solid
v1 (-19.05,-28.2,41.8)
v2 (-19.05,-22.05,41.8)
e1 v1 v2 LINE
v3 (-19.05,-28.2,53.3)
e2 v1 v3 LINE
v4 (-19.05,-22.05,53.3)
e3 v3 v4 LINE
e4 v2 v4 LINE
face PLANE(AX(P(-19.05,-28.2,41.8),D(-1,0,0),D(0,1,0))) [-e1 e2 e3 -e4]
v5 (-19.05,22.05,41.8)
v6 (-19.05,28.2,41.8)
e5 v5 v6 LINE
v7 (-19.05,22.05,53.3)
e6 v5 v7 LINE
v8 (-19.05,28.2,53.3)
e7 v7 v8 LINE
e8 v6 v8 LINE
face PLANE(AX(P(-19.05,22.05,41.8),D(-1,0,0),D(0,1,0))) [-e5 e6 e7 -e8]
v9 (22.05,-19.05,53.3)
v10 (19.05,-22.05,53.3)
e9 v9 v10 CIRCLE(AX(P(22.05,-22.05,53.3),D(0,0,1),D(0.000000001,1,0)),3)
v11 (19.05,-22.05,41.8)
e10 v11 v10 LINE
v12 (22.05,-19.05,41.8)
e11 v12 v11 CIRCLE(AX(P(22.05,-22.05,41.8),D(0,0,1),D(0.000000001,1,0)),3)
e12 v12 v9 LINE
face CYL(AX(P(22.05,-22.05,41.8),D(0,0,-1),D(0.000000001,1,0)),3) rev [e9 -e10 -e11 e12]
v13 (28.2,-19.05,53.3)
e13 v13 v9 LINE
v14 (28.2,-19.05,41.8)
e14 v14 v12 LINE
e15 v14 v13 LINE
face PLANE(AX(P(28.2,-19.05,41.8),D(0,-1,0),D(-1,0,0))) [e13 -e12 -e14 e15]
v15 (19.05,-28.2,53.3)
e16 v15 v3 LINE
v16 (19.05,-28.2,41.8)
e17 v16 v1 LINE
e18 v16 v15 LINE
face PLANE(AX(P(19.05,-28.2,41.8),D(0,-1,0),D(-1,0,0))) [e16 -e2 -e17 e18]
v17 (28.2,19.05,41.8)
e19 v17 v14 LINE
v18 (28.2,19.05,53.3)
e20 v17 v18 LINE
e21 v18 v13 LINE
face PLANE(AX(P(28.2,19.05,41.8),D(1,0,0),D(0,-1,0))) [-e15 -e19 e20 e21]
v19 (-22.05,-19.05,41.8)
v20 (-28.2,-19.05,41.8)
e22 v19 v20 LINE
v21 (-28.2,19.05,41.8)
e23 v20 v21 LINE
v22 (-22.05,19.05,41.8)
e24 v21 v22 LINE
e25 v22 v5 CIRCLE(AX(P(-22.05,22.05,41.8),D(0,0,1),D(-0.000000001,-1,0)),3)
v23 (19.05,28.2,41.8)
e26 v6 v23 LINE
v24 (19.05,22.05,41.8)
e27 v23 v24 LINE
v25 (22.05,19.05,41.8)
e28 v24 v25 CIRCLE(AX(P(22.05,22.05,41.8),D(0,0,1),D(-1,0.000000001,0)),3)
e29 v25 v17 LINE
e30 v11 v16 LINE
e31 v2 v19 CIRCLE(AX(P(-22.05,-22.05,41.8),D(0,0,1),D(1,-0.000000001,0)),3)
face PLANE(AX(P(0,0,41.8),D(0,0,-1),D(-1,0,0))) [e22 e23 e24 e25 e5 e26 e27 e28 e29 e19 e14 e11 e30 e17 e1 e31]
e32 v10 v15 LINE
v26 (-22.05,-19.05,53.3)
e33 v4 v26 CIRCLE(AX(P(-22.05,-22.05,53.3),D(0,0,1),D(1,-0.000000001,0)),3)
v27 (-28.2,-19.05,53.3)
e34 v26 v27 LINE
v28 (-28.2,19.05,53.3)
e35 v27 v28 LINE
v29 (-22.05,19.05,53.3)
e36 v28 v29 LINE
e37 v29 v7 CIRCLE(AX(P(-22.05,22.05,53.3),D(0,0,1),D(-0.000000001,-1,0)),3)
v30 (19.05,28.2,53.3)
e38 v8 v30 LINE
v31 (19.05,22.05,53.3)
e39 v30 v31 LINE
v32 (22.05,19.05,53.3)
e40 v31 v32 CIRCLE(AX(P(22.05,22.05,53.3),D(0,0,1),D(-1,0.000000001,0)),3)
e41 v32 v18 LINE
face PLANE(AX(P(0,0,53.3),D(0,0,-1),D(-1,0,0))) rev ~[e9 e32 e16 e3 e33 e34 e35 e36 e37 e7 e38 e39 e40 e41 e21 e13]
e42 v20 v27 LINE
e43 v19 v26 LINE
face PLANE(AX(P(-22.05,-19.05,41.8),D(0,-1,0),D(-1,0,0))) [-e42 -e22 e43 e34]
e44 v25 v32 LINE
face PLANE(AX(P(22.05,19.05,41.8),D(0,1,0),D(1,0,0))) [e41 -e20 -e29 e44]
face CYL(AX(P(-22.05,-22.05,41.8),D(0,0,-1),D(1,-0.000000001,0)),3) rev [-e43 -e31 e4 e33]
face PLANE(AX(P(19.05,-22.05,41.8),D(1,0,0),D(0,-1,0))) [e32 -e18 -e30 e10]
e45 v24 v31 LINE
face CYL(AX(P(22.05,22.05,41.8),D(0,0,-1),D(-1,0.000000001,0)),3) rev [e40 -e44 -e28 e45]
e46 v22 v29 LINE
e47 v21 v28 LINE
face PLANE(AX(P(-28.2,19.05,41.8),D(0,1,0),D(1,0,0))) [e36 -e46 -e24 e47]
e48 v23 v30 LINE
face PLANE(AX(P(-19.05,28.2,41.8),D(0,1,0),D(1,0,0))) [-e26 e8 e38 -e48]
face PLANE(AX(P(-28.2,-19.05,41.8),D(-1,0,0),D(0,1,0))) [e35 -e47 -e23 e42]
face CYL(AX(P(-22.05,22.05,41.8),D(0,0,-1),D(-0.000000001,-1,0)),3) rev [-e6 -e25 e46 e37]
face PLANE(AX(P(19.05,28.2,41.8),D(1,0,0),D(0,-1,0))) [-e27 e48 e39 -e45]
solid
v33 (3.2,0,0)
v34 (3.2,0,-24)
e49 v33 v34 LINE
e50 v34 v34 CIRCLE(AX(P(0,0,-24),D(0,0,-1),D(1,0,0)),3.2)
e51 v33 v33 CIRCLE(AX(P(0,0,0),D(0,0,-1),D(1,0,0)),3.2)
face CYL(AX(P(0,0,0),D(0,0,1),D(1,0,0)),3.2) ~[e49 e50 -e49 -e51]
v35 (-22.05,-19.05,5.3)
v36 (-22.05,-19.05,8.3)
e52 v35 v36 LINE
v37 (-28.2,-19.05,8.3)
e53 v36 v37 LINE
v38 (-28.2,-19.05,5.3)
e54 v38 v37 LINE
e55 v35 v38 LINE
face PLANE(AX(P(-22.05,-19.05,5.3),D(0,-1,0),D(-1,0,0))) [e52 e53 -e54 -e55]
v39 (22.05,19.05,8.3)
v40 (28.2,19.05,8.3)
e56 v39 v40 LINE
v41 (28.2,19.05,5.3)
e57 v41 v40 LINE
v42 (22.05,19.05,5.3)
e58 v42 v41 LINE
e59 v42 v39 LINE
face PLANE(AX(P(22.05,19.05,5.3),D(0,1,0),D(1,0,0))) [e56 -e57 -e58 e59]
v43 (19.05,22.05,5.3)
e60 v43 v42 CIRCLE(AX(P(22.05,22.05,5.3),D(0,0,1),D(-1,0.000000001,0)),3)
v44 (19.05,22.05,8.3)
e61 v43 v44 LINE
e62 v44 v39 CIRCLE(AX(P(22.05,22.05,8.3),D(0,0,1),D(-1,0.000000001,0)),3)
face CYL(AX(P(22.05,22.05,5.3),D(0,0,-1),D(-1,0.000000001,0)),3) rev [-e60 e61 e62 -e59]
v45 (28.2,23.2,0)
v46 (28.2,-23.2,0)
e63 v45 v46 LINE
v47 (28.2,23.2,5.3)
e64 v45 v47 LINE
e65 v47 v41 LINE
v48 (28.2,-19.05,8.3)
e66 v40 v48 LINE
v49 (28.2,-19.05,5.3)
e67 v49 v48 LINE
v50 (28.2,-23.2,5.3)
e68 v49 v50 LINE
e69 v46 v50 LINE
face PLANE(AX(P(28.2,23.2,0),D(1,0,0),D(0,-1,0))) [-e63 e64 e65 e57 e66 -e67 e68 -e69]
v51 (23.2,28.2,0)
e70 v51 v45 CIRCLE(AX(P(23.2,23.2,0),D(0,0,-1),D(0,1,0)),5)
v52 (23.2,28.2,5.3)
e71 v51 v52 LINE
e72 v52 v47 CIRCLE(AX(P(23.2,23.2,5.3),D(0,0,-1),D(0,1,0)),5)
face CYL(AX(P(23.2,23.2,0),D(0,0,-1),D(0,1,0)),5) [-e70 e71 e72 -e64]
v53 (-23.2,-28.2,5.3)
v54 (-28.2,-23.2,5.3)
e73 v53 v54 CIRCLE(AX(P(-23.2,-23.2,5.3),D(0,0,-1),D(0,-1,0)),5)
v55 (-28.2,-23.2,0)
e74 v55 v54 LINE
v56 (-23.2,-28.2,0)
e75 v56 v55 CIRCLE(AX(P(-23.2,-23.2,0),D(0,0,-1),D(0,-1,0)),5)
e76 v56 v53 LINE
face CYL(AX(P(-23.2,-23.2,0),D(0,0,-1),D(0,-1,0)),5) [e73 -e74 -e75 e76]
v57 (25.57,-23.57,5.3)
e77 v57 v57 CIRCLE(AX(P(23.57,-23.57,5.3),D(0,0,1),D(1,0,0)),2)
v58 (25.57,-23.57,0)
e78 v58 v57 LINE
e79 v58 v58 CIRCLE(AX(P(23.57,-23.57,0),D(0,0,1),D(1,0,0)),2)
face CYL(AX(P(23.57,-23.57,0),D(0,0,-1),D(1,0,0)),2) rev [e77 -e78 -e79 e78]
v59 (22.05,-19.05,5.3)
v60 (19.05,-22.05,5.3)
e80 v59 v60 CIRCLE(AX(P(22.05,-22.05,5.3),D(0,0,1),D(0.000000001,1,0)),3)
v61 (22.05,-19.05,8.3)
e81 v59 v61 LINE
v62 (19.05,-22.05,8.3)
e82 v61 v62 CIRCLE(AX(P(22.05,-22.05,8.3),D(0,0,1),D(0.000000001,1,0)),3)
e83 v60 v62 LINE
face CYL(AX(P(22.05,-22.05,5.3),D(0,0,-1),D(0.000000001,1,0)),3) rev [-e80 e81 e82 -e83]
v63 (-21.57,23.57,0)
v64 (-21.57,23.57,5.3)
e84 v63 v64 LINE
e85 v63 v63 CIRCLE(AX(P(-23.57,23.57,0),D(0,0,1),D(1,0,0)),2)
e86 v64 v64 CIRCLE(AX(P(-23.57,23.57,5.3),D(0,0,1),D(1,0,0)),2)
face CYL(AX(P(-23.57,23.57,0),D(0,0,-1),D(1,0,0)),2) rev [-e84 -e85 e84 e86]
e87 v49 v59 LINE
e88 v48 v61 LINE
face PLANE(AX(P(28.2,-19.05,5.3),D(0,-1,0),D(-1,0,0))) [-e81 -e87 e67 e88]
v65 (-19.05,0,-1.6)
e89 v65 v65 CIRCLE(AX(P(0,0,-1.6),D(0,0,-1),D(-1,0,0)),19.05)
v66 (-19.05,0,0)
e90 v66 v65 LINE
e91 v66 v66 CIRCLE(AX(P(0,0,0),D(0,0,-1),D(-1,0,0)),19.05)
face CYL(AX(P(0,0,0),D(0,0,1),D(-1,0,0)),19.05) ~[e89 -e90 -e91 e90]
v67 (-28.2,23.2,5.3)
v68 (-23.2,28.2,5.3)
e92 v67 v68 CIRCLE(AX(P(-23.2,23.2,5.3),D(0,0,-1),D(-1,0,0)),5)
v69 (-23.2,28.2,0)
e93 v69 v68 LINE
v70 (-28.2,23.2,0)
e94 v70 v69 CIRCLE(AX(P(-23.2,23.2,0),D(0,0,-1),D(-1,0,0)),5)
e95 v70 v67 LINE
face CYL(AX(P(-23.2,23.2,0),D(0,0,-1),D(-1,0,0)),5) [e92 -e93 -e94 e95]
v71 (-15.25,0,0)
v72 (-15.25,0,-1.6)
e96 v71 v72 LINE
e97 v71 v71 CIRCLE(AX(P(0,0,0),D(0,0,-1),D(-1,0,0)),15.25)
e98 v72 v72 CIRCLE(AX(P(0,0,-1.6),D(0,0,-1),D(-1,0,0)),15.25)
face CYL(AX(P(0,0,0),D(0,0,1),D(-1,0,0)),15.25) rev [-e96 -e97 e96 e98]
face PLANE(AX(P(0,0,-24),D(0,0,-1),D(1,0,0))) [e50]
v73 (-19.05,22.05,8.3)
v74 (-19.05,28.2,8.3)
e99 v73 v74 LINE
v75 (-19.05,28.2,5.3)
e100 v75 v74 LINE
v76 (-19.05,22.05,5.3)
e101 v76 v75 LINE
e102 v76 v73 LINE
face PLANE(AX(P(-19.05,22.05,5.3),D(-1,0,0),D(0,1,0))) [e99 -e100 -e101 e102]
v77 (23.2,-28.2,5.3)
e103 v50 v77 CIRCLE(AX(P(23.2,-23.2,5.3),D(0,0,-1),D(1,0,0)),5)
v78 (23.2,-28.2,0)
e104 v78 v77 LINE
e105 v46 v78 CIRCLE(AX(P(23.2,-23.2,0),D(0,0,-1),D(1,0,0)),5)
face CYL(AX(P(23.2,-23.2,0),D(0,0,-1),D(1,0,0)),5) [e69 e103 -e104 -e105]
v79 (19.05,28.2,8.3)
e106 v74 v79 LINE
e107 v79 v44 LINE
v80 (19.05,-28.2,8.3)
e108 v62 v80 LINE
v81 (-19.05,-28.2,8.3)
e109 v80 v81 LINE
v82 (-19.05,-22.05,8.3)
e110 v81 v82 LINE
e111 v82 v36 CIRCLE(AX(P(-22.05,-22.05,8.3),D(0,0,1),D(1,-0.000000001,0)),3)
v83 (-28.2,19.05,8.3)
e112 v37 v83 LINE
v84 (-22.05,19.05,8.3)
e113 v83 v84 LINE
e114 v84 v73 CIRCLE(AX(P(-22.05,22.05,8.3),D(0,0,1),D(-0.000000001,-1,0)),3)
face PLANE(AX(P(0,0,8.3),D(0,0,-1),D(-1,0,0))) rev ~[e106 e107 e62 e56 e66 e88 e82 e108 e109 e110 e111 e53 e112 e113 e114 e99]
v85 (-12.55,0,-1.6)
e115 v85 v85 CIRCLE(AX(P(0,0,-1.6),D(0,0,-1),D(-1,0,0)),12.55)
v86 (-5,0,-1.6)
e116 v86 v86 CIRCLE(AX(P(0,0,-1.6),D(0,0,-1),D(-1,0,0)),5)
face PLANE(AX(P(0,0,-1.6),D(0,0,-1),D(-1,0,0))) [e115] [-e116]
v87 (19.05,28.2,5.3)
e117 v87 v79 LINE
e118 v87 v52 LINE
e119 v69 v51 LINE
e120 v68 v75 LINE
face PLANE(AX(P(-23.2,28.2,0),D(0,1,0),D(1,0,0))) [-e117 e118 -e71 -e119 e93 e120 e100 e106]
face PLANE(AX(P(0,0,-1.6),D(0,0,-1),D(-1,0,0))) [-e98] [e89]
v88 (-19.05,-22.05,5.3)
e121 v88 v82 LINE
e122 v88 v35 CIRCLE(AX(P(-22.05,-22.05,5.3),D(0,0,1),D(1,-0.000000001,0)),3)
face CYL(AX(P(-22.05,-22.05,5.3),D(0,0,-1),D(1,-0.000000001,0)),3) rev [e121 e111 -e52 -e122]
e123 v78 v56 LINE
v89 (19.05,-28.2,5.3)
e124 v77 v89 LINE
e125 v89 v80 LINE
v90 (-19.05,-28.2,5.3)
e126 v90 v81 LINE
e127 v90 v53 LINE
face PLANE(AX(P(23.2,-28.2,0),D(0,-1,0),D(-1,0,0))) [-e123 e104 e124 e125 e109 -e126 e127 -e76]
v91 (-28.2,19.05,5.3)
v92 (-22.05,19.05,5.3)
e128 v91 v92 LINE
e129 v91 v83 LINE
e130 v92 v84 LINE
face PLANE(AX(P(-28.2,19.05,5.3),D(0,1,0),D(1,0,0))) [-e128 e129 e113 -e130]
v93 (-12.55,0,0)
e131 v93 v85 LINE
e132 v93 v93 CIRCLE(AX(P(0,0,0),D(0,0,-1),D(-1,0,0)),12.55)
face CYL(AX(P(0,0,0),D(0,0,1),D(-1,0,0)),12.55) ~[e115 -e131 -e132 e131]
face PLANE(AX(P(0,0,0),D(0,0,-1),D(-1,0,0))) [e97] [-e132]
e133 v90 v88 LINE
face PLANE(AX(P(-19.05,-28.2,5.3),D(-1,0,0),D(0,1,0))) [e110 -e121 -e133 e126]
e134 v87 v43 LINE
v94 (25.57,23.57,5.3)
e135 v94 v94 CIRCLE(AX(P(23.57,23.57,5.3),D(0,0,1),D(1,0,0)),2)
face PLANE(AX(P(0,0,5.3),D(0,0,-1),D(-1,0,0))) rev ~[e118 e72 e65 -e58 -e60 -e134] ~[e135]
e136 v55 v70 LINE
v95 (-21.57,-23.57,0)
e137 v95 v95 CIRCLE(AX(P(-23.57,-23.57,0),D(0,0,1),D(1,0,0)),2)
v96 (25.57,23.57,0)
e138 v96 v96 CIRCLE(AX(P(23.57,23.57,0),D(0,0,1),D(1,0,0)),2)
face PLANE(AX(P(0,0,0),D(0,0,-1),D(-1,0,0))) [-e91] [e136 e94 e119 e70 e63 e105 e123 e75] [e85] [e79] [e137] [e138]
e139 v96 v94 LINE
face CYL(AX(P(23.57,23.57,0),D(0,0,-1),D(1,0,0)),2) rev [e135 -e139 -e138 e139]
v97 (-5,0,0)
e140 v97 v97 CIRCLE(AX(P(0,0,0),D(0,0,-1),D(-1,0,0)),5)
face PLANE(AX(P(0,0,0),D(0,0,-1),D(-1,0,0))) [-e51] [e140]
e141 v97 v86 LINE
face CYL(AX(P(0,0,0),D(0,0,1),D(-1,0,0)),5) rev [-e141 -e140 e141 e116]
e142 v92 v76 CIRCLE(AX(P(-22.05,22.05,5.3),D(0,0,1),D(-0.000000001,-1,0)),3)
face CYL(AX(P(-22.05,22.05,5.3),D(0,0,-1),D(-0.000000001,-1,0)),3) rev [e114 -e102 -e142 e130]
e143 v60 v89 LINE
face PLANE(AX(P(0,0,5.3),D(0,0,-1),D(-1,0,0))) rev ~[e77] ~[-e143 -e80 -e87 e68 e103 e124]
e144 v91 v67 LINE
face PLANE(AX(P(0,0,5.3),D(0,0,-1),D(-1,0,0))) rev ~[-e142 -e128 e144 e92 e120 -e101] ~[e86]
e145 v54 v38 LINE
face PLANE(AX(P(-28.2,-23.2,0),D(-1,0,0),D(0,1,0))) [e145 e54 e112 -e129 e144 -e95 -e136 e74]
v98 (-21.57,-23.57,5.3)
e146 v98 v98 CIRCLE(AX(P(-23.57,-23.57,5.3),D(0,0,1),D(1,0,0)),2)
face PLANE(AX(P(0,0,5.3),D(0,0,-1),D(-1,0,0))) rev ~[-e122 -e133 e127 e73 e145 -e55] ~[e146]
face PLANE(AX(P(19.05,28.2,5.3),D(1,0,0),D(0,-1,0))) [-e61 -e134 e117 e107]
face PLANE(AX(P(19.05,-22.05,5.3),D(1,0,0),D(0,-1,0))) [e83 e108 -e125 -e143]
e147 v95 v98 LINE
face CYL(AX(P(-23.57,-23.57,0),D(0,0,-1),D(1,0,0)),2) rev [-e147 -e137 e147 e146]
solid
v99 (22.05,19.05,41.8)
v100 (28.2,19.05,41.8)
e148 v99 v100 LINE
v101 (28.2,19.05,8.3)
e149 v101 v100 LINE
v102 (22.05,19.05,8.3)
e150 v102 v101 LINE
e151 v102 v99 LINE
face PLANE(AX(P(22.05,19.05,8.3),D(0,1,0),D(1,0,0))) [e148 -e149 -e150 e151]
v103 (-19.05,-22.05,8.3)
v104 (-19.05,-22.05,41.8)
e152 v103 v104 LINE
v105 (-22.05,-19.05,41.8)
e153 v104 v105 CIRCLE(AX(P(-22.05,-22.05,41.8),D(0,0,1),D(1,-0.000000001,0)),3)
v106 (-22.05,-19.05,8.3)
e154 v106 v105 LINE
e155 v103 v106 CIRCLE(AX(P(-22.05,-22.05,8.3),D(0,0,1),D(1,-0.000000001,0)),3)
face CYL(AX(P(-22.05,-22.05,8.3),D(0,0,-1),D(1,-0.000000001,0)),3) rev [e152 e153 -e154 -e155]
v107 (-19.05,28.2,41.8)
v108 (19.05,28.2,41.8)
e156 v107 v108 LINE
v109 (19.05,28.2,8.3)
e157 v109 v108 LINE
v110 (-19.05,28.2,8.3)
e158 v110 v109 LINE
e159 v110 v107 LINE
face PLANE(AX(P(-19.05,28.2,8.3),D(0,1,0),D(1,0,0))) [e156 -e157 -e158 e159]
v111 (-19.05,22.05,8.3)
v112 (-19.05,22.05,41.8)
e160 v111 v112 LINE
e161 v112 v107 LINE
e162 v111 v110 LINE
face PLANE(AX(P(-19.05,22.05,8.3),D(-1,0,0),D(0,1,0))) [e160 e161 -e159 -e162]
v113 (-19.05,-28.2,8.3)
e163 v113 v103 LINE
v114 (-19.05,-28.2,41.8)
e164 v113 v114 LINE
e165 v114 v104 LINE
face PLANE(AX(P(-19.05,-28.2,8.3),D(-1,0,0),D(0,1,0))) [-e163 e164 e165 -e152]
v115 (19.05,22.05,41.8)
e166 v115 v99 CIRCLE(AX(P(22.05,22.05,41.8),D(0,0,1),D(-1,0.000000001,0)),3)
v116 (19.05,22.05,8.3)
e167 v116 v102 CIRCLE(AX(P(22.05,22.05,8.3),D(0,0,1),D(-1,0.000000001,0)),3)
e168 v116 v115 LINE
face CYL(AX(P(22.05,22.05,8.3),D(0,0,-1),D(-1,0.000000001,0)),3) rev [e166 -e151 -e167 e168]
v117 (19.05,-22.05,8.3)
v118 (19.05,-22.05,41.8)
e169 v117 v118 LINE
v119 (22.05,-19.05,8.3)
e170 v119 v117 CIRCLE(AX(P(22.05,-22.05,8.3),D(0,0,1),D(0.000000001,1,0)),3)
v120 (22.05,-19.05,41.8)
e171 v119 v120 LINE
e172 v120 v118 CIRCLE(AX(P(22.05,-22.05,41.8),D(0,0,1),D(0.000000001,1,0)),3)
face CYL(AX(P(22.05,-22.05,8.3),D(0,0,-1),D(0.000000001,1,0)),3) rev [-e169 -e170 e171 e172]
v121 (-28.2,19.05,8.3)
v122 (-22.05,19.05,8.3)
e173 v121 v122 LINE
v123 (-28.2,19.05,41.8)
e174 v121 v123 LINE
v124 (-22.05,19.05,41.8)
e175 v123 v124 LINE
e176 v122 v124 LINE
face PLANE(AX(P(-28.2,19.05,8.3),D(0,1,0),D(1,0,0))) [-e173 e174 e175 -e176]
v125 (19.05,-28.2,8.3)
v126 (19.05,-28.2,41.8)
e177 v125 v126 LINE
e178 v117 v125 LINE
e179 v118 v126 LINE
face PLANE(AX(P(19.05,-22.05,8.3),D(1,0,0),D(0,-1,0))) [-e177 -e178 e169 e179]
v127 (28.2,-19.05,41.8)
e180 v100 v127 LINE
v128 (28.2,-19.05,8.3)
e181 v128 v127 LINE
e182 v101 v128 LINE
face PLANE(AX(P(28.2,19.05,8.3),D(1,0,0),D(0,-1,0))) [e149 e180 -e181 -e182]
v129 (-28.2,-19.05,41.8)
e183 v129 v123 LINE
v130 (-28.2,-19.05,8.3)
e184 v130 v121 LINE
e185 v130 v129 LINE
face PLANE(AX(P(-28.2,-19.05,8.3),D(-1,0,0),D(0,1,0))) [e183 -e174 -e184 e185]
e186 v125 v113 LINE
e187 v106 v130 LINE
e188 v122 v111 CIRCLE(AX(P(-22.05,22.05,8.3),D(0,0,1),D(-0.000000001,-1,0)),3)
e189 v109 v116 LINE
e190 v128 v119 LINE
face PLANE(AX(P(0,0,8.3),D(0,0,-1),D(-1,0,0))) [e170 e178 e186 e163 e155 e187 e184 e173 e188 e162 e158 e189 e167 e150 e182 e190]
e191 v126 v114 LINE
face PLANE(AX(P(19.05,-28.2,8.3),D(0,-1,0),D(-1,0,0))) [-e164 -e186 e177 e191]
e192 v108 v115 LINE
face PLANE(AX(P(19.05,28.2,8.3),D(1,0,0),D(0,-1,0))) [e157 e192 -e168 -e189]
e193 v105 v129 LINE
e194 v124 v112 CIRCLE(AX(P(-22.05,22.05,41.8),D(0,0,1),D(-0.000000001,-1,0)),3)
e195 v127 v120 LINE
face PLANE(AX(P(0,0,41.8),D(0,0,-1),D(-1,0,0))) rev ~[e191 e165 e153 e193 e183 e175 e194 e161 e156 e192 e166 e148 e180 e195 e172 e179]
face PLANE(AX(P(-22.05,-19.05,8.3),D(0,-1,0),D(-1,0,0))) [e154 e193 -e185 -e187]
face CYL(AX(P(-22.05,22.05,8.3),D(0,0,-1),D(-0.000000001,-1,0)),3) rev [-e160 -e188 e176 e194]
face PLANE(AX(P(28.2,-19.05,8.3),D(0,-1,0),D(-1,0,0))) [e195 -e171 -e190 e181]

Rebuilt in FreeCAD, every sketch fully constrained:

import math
import FreeCAD as App
import Part
import Sketcher

V = App.Vector

doc = App.newDocument("Part")
params = doc.addObject("Spreadsheet::Sheet", "Params")
for row, (alias, value) in enumerate([
    ("sketch1_diameter", "4 mm"),
    ("sketch1_radius", "5 mm"),
    ("sketch1_width", "46.4 mm"),
    ("pad1_length", "5.3 mm"),
    ("sketch2_radius", "3 mm"),
    ("sketch2_width", "38.1 mm"),
    ("sketch2_width2", "6.15 mm"),
    ("pad2_length", "3 mm"),
    ("sketch3_radius", "3 mm"),
    ("sketch3_width", "38.1 mm"),
    ("sketch3_width2", "6.15 mm"),
    ("pad3_length", "33.5 mm"),
    ("sketch4_radius", "3 mm"),
    ("sketch4_width", "38.1 mm"),
    ("sketch4_width2", "6.15 mm"),
    ("pad4_length", "11.5 mm"),
    ("sketch5_diameter", "38.1 mm"),
    ("sketch5_diameter2", "30.5 mm"),
    ("pad5_length", "1.6 mm"),
    ("sketch6_diameter", "10 mm"),
    ("sketch6_diameter2", "25.1 mm"),
    ("pad6_length", "1.6 mm"),
    ("sketch7_diameter", "6.4 mm"),
    ("pad7_length", "24 mm"),
], start=1):
    params.set(f"A{row}", alias)
    params.set(f"B{row}", "=" + value)
    params.setAlias(f"B{row}", alias)

body = doc.addObject("PartDesign::Body", "Body")

# Sketch on XY plane
sketch1 = doc.addObject("Sketcher::SketchObject", "Sketch")
body.addObject(sketch1)
sketch1.AttachmentSupport = (doc.XY_Plane, [""])
sketch1.MapMode = "FlatFace"
sketch1.addGeometry(Part.LineSegment(V(-23.2, -28.2, 0), V(23.2, -28.2, 0)), False)
sketch1.addGeometry(Part.ArcOfCircle(Part.Circle(V(23.2, -23.2, 0), V(0, 0, 1), 5), math.radians(-90), math.radians(0)), False)
sketch1.addGeometry(Part.LineSegment(V(28.2, -23.2, 0), V(28.2, 23.2, 0)), False)
sketch1.addGeometry(Part.ArcOfCircle(Part.Circle(V(23.2, 23.2, 0), V(0, 0, 1), 5), math.radians(0), math.radians(90)), False)
sketch1.addGeometry(Part.LineSegment(V(23.2, 28.2, 0), V(-23.2, 28.2, 0)), False)
sketch1.addGeometry(Part.ArcOfCircle(Part.Circle(V(-23.2, 23.2, 0), V(0, 0, 1), 5), math.radians(90), math.radians(180)), False)
sketch1.addGeometry(Part.LineSegment(V(-28.2, 23.2, 0), V(-28.2, -23.2, 0)), False)
sketch1.addGeometry(Part.ArcOfCircle(Part.Circle(V(-23.2, -23.2, 0), V(0, 0, 1), 5), math.radians(180), math.radians(270)), False)
sketch1.addGeometry(Part.Circle(V(23.57, -23.57, 0), V(0, 0, 1), 2), False)
sketch1.addGeometry(Part.Circle(V(-23.57, -23.57, 0), V(0, 0, 1), 2), False)
sketch1.addGeometry(Part.Circle(V(23.57, 23.57, 0), V(0, 0, 1), 2), False)
sketch1.addGeometry(Part.Circle(V(-23.57, 23.57, 0), V(0, 0, 1), 2), False)
sketch1.addConstraint(Sketcher.Constraint("Tangent", 0, 2, 1, 1))
sketch1.addConstraint(Sketcher.Constraint("Tangent", 1, 2, 2, 1))
sketch1.addConstraint(Sketcher.Constraint("Tangent", 2, 2, 3, 1))
sketch1.addConstraint(Sketcher.Constraint("Tangent", 3, 2, 4, 1))
sketch1.addConstraint(Sketcher.Constraint("Tangent", 4, 2, 5, 1))
sketch1.addConstraint(Sketcher.Constraint("Tangent", 5, 2, 6, 1))
sketch1.addConstraint(Sketcher.Constraint("Tangent", 6, 2, 7, 1))
sketch1.addConstraint(Sketcher.Constraint("Tangent", 7, 2, 0, 1))
sketch1.addConstraint(Sketcher.Constraint("Horizontal", 0))
sketch1.addConstraint(Sketcher.Constraint("Vertical", 2))
sketch1.addConstraint(Sketcher.Constraint("Horizontal", 4))
sketch1.addConstraint(Sketcher.Constraint("Vertical", 6))
sketch1.addConstraint(Sketcher.Constraint("Equal", 1, 3))
sketch1.addConstraint(Sketcher.Constraint("Equal", 3, 5))
sketch1.addConstraint(Sketcher.Constraint("Equal", 5, 7))
sketch1.addConstraint(Sketcher.Constraint("Equal", 8, 9))
sketch1.addConstraint(Sketcher.Constraint("Equal", 9, 10))
sketch1.addConstraint(Sketcher.Constraint("Equal", 10, 11))
sketch1.addConstraint(Sketcher.Constraint("Symmetric", 1, 3, 5, 3, -1, 1))
sketch1.addConstraint(Sketcher.Constraint("Symmetric", 9, 3, 10, 3, -1, 1))
sketch1.addConstraint(Sketcher.Constraint("Symmetric", 8, 3, 11, 3, -1, 1))
sketch1.addConstraint(Sketcher.Constraint("Symmetric", 8, 3, 9, 3, -2))
sketch1.addConstraint(Sketcher.Constraint("Equal", 4, 2))
sketch1.addConstraint(Sketcher.Constraint("Diameter", 8, 4.0))
sketch1.addConstraint(Sketcher.Constraint("Radius", 1, 5.0))
sketch1.addConstraint(Sketcher.Constraint("DistanceX", 0, 1, 0, 2, 46.4))
sketch1.addConstraint(Sketcher.Constraint("DistanceX", -1, 1, 8, 3, 23.57))
sketch1.addConstraint(Sketcher.Constraint("DistanceY", 8, 3, -1, 1, 23.57))
sketch1.setExpression("Constraints[23]", "Params.sketch1_diameter")
sketch1.setExpression("Constraints[24]", "Params.sketch1_radius")
sketch1.setExpression("Constraints[25]", "Params.sketch1_width")
pad1 = doc.addObject("PartDesign::Pad", "Pad")
body.addObject(pad1)
pad1.Profile = sketch1
pad1.setExpression("Length", "Params.pad1_length")

# Sketch on XY plane
sketch2 = doc.addObject("Sketcher::SketchObject", "Sketch001")
body.addObject(sketch2)
sketch2.AttachmentSupport = (doc.XY_Plane, [""])
sketch2.MapMode = "FlatFace"
sketch2.AttachmentOffset = App.Placement(V(0, 0, 5.3), App.Rotation())
sketch2.addGeometry(Part.LineSegment(V(-19.05, 28.2, 0), V(-19.05, 22.05, 0)), False)
sketch2.addGeometry(Part.ArcOfCircle(Part.Circle(V(-22.05, 22.05, 0), V(0, 0, 1), 3), math.radians(-90), math.radians(0)), False)
sketch2.addGeometry(Part.LineSegment(V(-22.05, 19.05, 0), V(-28.2, 19.05, 0)), False)
sketch2.addGeometry(Part.LineSegment(V(-28.2, 19.05, 0), V(-28.2, -19.05, 0)), False)
sketch2.addGeometry(Part.LineSegment(V(-28.2, -19.05, 0), V(-22.05, -19.05, 0)), False)
sketch2.addGeometry(Part.ArcOfCircle(Part.Circle(V(-22.05, -22.05, 0), V(0, 0, 1), 3), math.radians(0), math.radians(90)), False)
sketch2.addGeometry(Part.LineSegment(V(-19.05, -22.05, 0), V(-19.05, -28.2, 0)), False)
sketch2.addGeometry(Part.LineSegment(V(-19.05, -28.2, 0), V(19.05, -28.2, 0)), False)
sketch2.addGeometry(Part.LineSegment(V(19.05, -28.2, 0), V(19.05, -22.05, 0)), False)
sketch2.addGeometry(Part.ArcOfCircle(Part.Circle(V(22.05, -22.05, 0), V(0, 0, 1), 3), math.radians(90), math.radians(180)), False)
sketch2.addGeometry(Part.LineSegment(V(22.05, -19.05, 0), V(28.2, -19.05, 0)), False)
sketch2.addGeometry(Part.LineSegment(V(28.2, -19.05, 0), V(28.2, 19.05, 0)), False)
sketch2.addGeometry(Part.LineSegment(V(28.2, 19.05, 0), V(22.05, 19.05, 0)), False)
sketch2.addGeometry(Part.ArcOfCircle(Part.Circle(V(22.05, 22.05, 0), V(0, 0, 1), 3), math.radians(180), math.radians(270)), False)
sketch2.addGeometry(Part.LineSegment(V(19.05, 22.05, 0), V(19.05, 28.2, 0)), False)
sketch2.addGeometry(Part.LineSegment(V(19.05, 28.2, 0), V(-19.05, 28.2, 0)), False)
sketch2.addConstraint(Sketcher.Constraint("Tangent", 0, 2, 1, 2))
sketch2.addConstraint(Sketcher.Constraint("Tangent", 1, 1, 2, 1))
sketch2.addConstraint(Sketcher.Constraint("Coincident", 2, 2, 3, 1))
sketch2.addConstraint(Sketcher.Constraint("Coincident", 3, 2, 4, 1))
sketch2.addConstraint(Sketcher.Constraint("Tangent", 4, 2, 5, 2))
sketch2.addConstraint(Sketcher.Constraint("Tangent", 5, 1, 6, 1))
sketch2.addConstraint(Sketcher.Constraint("Coincident", 6, 2, 7, 1))
sketch2.addConstraint(Sketcher.Constraint("Coincident", 7, 2, 8, 1))
sketch2.addConstraint(Sketcher.Constraint("Tangent", 8, 2, 9, 2))
sketch2.addConstraint(Sketcher.Constraint("Tangent", 9, 1, 10, 1))
sketch2.addConstraint(Sketcher.Constraint("Coincident", 10, 2, 11, 1))
sketch2.addConstraint(Sketcher.Constraint("Coincident", 11, 2, 12, 1))
sketch2.addConstraint(Sketcher.Constraint("Tangent", 12, 2, 13, 2))
sketch2.addConstraint(Sketcher.Constraint("Tangent", 13, 1, 14, 1))
sketch2.addConstraint(Sketcher.Constraint("Coincident", 14, 2, 15, 1))
sketch2.addConstraint(Sketcher.Constraint("Coincident", 15, 2, 0, 1))
sketch2.addConstraint(Sketcher.Constraint("Vertical", 0))
sketch2.addConstraint(Sketcher.Constraint("Horizontal", 2))
sketch2.addConstraint(Sketcher.Constraint("Vertical", 3))
sketch2.addConstraint(Sketcher.Constraint("Horizontal", 4))
sketch2.addConstraint(Sketcher.Constraint("Vertical", 6))
sketch2.addConstraint(Sketcher.Constraint("Horizontal", 7))
sketch2.addConstraint(Sketcher.Constraint("Vertical", 8))
sketch2.addConstraint(Sketcher.Constraint("Horizontal", 10))
sketch2.addConstraint(Sketcher.Constraint("Vertical", 11))
sketch2.addConstraint(Sketcher.Constraint("Horizontal", 12))
sketch2.addConstraint(Sketcher.Constraint("Vertical", 14))
sketch2.addConstraint(Sketcher.Constraint("Horizontal", 15))
sketch2.addConstraint(Sketcher.Constraint("Equal", 1, 5))
sketch2.addConstraint(Sketcher.Constraint("Equal", 5, 9))
sketch2.addConstraint(Sketcher.Constraint("Equal", 9, 13))
sketch2.addConstraint(Sketcher.Constraint("Symmetric", 1, 3, 9, 3, -1, 1))
sketch2.addConstraint(Sketcher.Constraint("Symmetric", 5, 3, 13, 3, -1, 1))
sketch2.addConstraint(Sketcher.Constraint("Symmetric", 5, 3, 9, 3, -2))
sketch2.addConstraint(Sketcher.Constraint("Equal", 4, 10))
sketch2.addConstraint(Sketcher.Constraint("Equal", 12, 0))
sketch2.addConstraint(Sketcher.Constraint("Equal", 15, 3))
sketch2.addConstraint(Sketcher.Constraint("Equal", 0, 6))
sketch2.addConstraint(Sketcher.Constraint("Radius", 1, 3.0))
sketch2.addConstraint(Sketcher.Constraint("DistanceX", 7, 1, 7, 2, 38.1))
sketch2.addConstraint(Sketcher.Constraint("DistanceX", 2, 2, 2, 1, 6.15))
sketch2.setExpression("Constraints[38]", "Params.sketch2_radius")
sketch2.setExpression("Constraints[39]", "Params.sketch2_width")
sketch2.setExpression("Constraints[40]", "Params.sketch2_width2")
pad2 = doc.addObject("PartDesign::Pad", "Pad001")
body.addObject(pad2)
pad2.Profile = sketch2
pad2.setExpression("Length", "Params.pad2_length")
body2 = doc.addObject("PartDesign::Body", "Body001")

# Sketch on XY plane
sketch3 = doc.addObject("Sketcher::SketchObject", "Sketch002")
body2.addObject(sketch3)
sketch3.AttachmentSupport = (doc.getObject("XY_Plane001"), [""])
sketch3.MapMode = "FlatFace"
sketch3.AttachmentOffset = App.Placement(V(0, 0, 8.3), App.Rotation())
sketch3.addGeometry(Part.LineSegment(V(19.05, 28.2, 0), V(-19.05, 28.2, 0)), False)
sketch3.addGeometry(Part.LineSegment(V(-19.05, 28.2, 0), V(-19.05, 22.05, 0)), False)
sketch3.addGeometry(Part.ArcOfCircle(Part.Circle(V(-22.05, 22.05, 0), V(0, 0, 1), 3), math.radians(-90), math.radians(0)), False)
sketch3.addGeometry(Part.LineSegment(V(-22.05, 19.05, 0), V(-28.2, 19.05, 0)), False)
sketch3.addGeometry(Part.LineSegment(V(-28.2, 19.05, 0), V(-28.2, -19.05, 0)), False)
sketch3.addGeometry(Part.LineSegment(V(-28.2, -19.05, 0), V(-22.05, -19.05, 0)), False)
sketch3.addGeometry(Part.ArcOfCircle(Part.Circle(V(-22.05, -22.05, 0), V(0, 0, 1), 3), math.radians(0), math.radians(90)), False)
sketch3.addGeometry(Part.LineSegment(V(-19.05, -22.05, 0), V(-19.05, -28.2, 0)), False)
sketch3.addGeometry(Part.LineSegment(V(-19.05, -28.2, 0), V(19.05, -28.2, 0)), False)
sketch3.addGeometry(Part.LineSegment(V(19.05, -28.2, 0), V(19.05, -22.05, 0)), False)
sketch3.addGeometry(Part.ArcOfCircle(Part.Circle(V(22.05, -22.05, 0), V(0, 0, 1), 3), math.radians(90), math.radians(180)), False)
sketch3.addGeometry(Part.LineSegment(V(22.05, -19.05, 0), V(28.2, -19.05, 0)), False)
sketch3.addGeometry(Part.LineSegment(V(28.2, -19.05, 0), V(28.2, 19.05, 0)), False)
sketch3.addGeometry(Part.LineSegment(V(28.2, 19.05, 0), V(22.05, 19.05, 0)), False)
sketch3.addGeometry(Part.ArcOfCircle(Part.Circle(V(22.05, 22.05, 0), V(0, 0, 1), 3), math.radians(180), math.radians(270)), False)
sketch3.addGeometry(Part.LineSegment(V(19.05, 22.05, 0), V(19.05, 28.2, 0)), False)
sketch3.addConstraint(Sketcher.Constraint("Coincident", 0, 2, 1, 1))
sketch3.addConstraint(Sketcher.Constraint("Tangent", 1, 2, 2, 2))
sketch3.addConstraint(Sketcher.Constraint("Tangent", 2, 1, 3, 1))
sketch3.addConstraint(Sketcher.Constraint("Coincident", 3, 2, 4, 1))
sketch3.addConstraint(Sketcher.Constraint("Coincident", 4, 2, 5, 1))
sketch3.addConstraint(Sketcher.Constraint("Tangent", 5, 2, 6, 2))
sketch3.addConstraint(Sketcher.Constraint("Tangent", 6, 1, 7, 1))
sketch3.addConstraint(Sketcher.Constraint("Coincident", 7, 2, 8, 1))
sketch3.addConstraint(Sketcher.Constraint("Coincident", 8, 2, 9, 1))
sketch3.addConstraint(Sketcher.Constraint("Tangent", 9, 2, 10, 2))
sketch3.addConstraint(Sketcher.Constraint("Tangent", 10, 1, 11, 1))
sketch3.addConstraint(Sketcher.Constraint("Coincident", 11, 2, 12, 1))
sketch3.addConstraint(Sketcher.Constraint("Coincident", 12, 2, 13, 1))
sketch3.addConstraint(Sketcher.Constraint("Tangent", 13, 2, 14, 2))
sketch3.addConstraint(Sketcher.Constraint("Tangent", 14, 1, 15, 1))
sketch3.addConstraint(Sketcher.Constraint("Coincident", 15, 2, 0, 1))
sketch3.addConstraint(Sketcher.Constraint("Horizontal", 0))
sketch3.addConstraint(Sketcher.Constraint("Vertical", 1))
sketch3.addConstraint(Sketcher.Constraint("Horizontal", 3))
sketch3.addConstraint(Sketcher.Constraint("Vertical", 4))
sketch3.addConstraint(Sketcher.Constraint("Horizontal", 5))
sketch3.addConstraint(Sketcher.Constraint("Vertical", 7))
sketch3.addConstraint(Sketcher.Constraint("Horizontal", 8))
sketch3.addConstraint(Sketcher.Constraint("Vertical", 9))
sketch3.addConstraint(Sketcher.Constraint("Horizontal", 11))
sketch3.addConstraint(Sketcher.Constraint("Vertical", 12))
sketch3.addConstraint(Sketcher.Constraint("Horizontal", 13))
sketch3.addConstraint(Sketcher.Constraint("Vertical", 15))
sketch3.addConstraint(Sketcher.Constraint("Equal", 2, 6))
sketch3.addConstraint(Sketcher.Constraint("Equal", 6, 10))
sketch3.addConstraint(Sketcher.Constraint("Equal", 10, 14))
sketch3.addConstraint(Sketcher.Constraint("Symmetric", 2, 3, 10, 3, -1, 1))
sketch3.addConstraint(Sketcher.Constraint("Symmetric", 6, 3, 14, 3, -1, 1))
sketch3.addConstraint(Sketcher.Constraint("Symmetric", 6, 3, 10, 3, -2))
sketch3.addConstraint(Sketcher.Constraint("Equal", 5, 11))
sketch3.addConstraint(Sketcher.Constraint("Equal", 13, 1))
sketch3.addConstraint(Sketcher.Constraint("Equal", 8, 4))
sketch3.addConstraint(Sketcher.Constraint("Equal", 1, 7))
sketch3.addConstraint(Sketcher.Constraint("Radius", 2, 3.0))
sketch3.addConstraint(Sketcher.Constraint("DistanceX", 0, 2, 0, 1, 38.1))
sketch3.addConstraint(Sketcher.Constraint("DistanceX", 3, 2, 3, 1, 6.15))
sketch3.setExpression("Constraints[38]", "Params.sketch3_radius")
sketch3.setExpression("Constraints[39]", "Params.sketch3_width")
sketch3.setExpression("Constraints[40]", "Params.sketch3_width2")
pad3 = doc.addObject("PartDesign::Pad", "Pad002")
body2.addObject(pad3)
pad3.Profile = sketch3
pad3.setExpression("Length", "Params.pad3_length")
body3 = doc.addObject("PartDesign::Body", "Body002")

# Sketch on XY plane
sketch4 = doc.addObject("Sketcher::SketchObject", "Sketch003")
body3.addObject(sketch4)
sketch4.AttachmentSupport = (doc.getObject("XY_Plane002"), [""])
sketch4.MapMode = "FlatFace"
sketch4.AttachmentOffset = App.Placement(V(0, 0, 41.8), App.Rotation())
sketch4.addGeometry(Part.LineSegment(V(28.2, 19.05, 0), V(22.05, 19.05, 0)), False)
sketch4.addGeometry(Part.ArcOfCircle(Part.Circle(V(22.05, 22.05, 0), V(0, 0, 1), 3), math.radians(180), math.radians(270)), False)
sketch4.addGeometry(Part.LineSegment(V(19.05, 22.05, 0), V(19.05, 28.2, 0)), False)
sketch4.addGeometry(Part.LineSegment(V(19.05, 28.2, 0), V(-19.05, 28.2, 0)), False)
sketch4.addGeometry(Part.LineSegment(V(-19.05, 28.2, 0), V(-19.05, 22.05, 0)), False)
sketch4.addGeometry(Part.ArcOfCircle(Part.Circle(V(-22.05, 22.05, 0), V(0, 0, 1), 3), math.radians(-90), math.radians(0)), False)
sketch4.addGeometry(Part.LineSegment(V(-22.05, 19.05, 0), V(-28.2, 19.05, 0)), False)
sketch4.addGeometry(Part.LineSegment(V(-28.2, 19.05, 0), V(-28.2, -19.05, 0)), False)
sketch4.addGeometry(Part.LineSegment(V(-28.2, -19.05, 0), V(-22.05, -19.05, 0)), False)
sketch4.addGeometry(Part.ArcOfCircle(Part.Circle(V(-22.05, -22.05, 0), V(0, 0, 1), 3), math.radians(0), math.radians(90)), False)
sketch4.addGeometry(Part.LineSegment(V(-19.05, -22.05, 0), V(-19.05, -28.2, 0)), False)
sketch4.addGeometry(Part.LineSegment(V(-19.05, -28.2, 0), V(19.05, -28.2, 0)), False)
sketch4.addGeometry(Part.LineSegment(V(19.05, -28.2, 0), V(19.05, -22.05, 0)), False)
sketch4.addGeometry(Part.ArcOfCircle(Part.Circle(V(22.05, -22.05, 0), V(0, 0, 1), 3), math.radians(90), math.radians(180)), False)
sketch4.addGeometry(Part.LineSegment(V(22.05, -19.05, 0), V(28.2, -19.05, 0)), False)
sketch4.addGeometry(Part.LineSegment(V(28.2, -19.05, 0), V(28.2, 19.05, 0)), False)
sketch4.addConstraint(Sketcher.Constraint("Tangent", 0, 2, 1, 2))
sketch4.addConstraint(Sketcher.Constraint("Tangent", 1, 1, 2, 1))
sketch4.addConstraint(Sketcher.Constraint("Coincident", 2, 2, 3, 1))
sketch4.addConstraint(Sketcher.Constraint("Coincident", 3, 2, 4, 1))
sketch4.addConstraint(Sketcher.Constraint("Tangent", 4, 2, 5, 2))
sketch4.addConstraint(Sketcher.Constraint("Tangent", 5, 1, 6, 1))
sketch4.addConstraint(Sketcher.Constraint("Coincident", 6, 2, 7, 1))
sketch4.addConstraint(Sketcher.Constraint("Coincident", 7, 2, 8, 1))
sketch4.addConstraint(Sketcher.Constraint("Tangent", 8, 2, 9, 2))
sketch4.addConstraint(Sketcher.Constraint("Tangent", 9, 1, 10, 1))
sketch4.addConstraint(Sketcher.Constraint("Coincident", 10, 2, 11, 1))
sketch4.addConstraint(Sketcher.Constraint("Coincident", 11, 2, 12, 1))
sketch4.addConstraint(Sketcher.Constraint("Tangent", 12, 2, 13, 2))
sketch4.addConstraint(Sketcher.Constraint("Tangent", 13, 1, 14, 1))
sketch4.addConstraint(Sketcher.Constraint("Coincident", 14, 2, 15, 1))
sketch4.addConstraint(Sketcher.Constraint("Coincident", 15, 2, 0, 1))
sketch4.addConstraint(Sketcher.Constraint("Horizontal", 0))
sketch4.addConstraint(Sketcher.Constraint("Vertical", 2))
sketch4.addConstraint(Sketcher.Constraint("Horizontal", 3))
sketch4.addConstraint(Sketcher.Constraint("Vertical", 4))
sketch4.addConstraint(Sketcher.Constraint("Horizontal", 6))
sketch4.addConstraint(Sketcher.Constraint("Vertical", 7))
sketch4.addConstraint(Sketcher.Constraint("Horizontal", 8))
sketch4.addConstraint(Sketcher.Constraint("Vertical", 10))
sketch4.addConstraint(Sketcher.Constraint("Horizontal", 11))
sketch4.addConstraint(Sketcher.Constraint("Vertical", 12))
sketch4.addConstraint(Sketcher.Constraint("Horizontal", 14))
sketch4.addConstraint(Sketcher.Constraint("Vertical", 15))
sketch4.addConstraint(Sketcher.Constraint("Equal", 1, 5))
sketch4.addConstraint(Sketcher.Constraint("Equal", 5, 9))
sketch4.addConstraint(Sketcher.Constraint("Equal", 9, 13))
sketch4.addConstraint(Sketcher.Constraint("Symmetric", 1, 3, 9, 3, -1, 1))
sketch4.addConstraint(Sketcher.Constraint("Symmetric", 5, 3, 13, 3, -1, 1))
sketch4.addConstraint(Sketcher.Constraint("Symmetric", 1, 3, 5, 3, -2))
sketch4.addConstraint(Sketcher.Constraint("Equal", 0, 6))
sketch4.addConstraint(Sketcher.Constraint("Equal", 14, 2))
sketch4.addConstraint(Sketcher.Constraint("Equal", 11, 7))
sketch4.addConstraint(Sketcher.Constraint("Equal", 4, 10))
sketch4.addConstraint(Sketcher.Constraint("Radius", 1, 3.0))
sketch4.addConstraint(Sketcher.Constraint("DistanceX", 3, 2, 3, 1, 38.1))
sketch4.addConstraint(Sketcher.Constraint("DistanceX", 0, 2, 0, 1, 6.15))
sketch4.setExpression("Constraints[38]", "Params.sketch4_radius")
sketch4.setExpression("Constraints[39]", "Params.sketch4_width")
sketch4.setExpression("Constraints[40]", "Params.sketch4_width2")
pad4 = doc.addObject("PartDesign::Pad", "Pad003")
body3.addObject(pad4)
pad4.Profile = sketch4
pad4.setExpression("Length", "Params.pad4_length")
body4 = doc.addObject("PartDesign::Body", "Body003")

# Sketch on XY plane
sketch5 = doc.addObject("Sketcher::SketchObject", "Sketch004")
body4.addObject(sketch5)
sketch5.AttachmentSupport = (doc.getObject("XY_Plane003"), [""])
sketch5.MapMode = "FlatFace"
sketch5.addGeometry(Part.Circle(V(0, 0, 0), V(0, 0, 1), 19.05), False)
sketch5.addGeometry(Part.Circle(V(0, 0, 0), V(0, 0, 1), 15.25), False)
sketch5.addConstraint(Sketcher.Constraint("Coincident", 0, 3, -1, 1))
sketch5.addConstraint(Sketcher.Constraint("Coincident", 1, 3, -1, 1))
sketch5.addConstraint(Sketcher.Constraint("Diameter", 0, 38.1))
sketch5.addConstraint(Sketcher.Constraint("Diameter", 1, 30.5))
sketch5.setExpression("Constraints[2]", "Params.sketch5_diameter")
sketch5.setExpression("Constraints[3]", "Params.sketch5_diameter2")
pad5 = doc.addObject("PartDesign::Pad", "Pad004")
body4.addObject(pad5)
pad5.Profile = sketch5
pad5.setExpression("Length", "Params.pad5_length")
pad5.Reversed = True
body5 = doc.addObject("PartDesign::Body", "Body004")

# Sketch on XY plane
sketch6 = doc.addObject("Sketcher::SketchObject", "Sketch005")
body5.addObject(sketch6)
sketch6.AttachmentSupport = (doc.getObject("XY_Plane004"), [""])
sketch6.MapMode = "FlatFace"
sketch6.addGeometry(Part.Circle(V(0, 0, 0), V(0, 0, 1), 12.55), False)
sketch6.addGeometry(Part.Circle(V(0, 0, 0), V(0, 0, 1), 5), False)
sketch6.addConstraint(Sketcher.Constraint("Coincident", 0, 3, -1, 1))
sketch6.addConstraint(Sketcher.Constraint("Coincident", 1, 3, -1, 1))
sketch6.addConstraint(Sketcher.Constraint("Diameter", 1, 10.0))
sketch6.addConstraint(Sketcher.Constraint("Diameter", 0, 25.1))
sketch6.setExpression("Constraints[2]", "Params.sketch6_diameter")
sketch6.setExpression("Constraints[3]", "Params.sketch6_diameter2")
pad6 = doc.addObject("PartDesign::Pad", "Pad005")
body5.addObject(pad6)
pad6.Profile = sketch6
pad6.setExpression("Length", "Params.pad6_length")
pad6.Reversed = True
doc.recompute()

boolean = doc.addObject("PartDesign::Boolean", "Boolean")
body.addObject(boolean)
boolean.Type = "Fuse"
boolean.addObjects([body4])
doc.recompute()

boolean2 = doc.addObject("PartDesign::Boolean", "Boolean001")
body.addObject(boolean2)
boolean2.Type = "Fuse"
boolean2.addObjects([body5])

# Sketch on XY plane
sketch7 = doc.addObject("Sketcher::SketchObject", "Sketch006")
body.addObject(sketch7)
sketch7.AttachmentSupport = (doc.XY_Plane, [""])
sketch7.MapMode = "FlatFace"
sketch7.addGeometry(Part.Circle(V(0, 0, 0), V(0, 0, 1), 3.2), False)
sketch7.addConstraint(Sketcher.Constraint("Coincident", 0, 3, -1, 1))
sketch7.addConstraint(Sketcher.Constraint("Diameter", 0, 6.4))
sketch7.setExpression("Constraints[1]", "Params.sketch7_diameter")
pad7 = doc.addObject("PartDesign::Pad", "Pad006")
body.addObject(pad7)
pad7.Profile = sketch7
pad7.setExpression("Length", "Params.pad7_length")
pad7.Reversed = True

doc.recompute()
